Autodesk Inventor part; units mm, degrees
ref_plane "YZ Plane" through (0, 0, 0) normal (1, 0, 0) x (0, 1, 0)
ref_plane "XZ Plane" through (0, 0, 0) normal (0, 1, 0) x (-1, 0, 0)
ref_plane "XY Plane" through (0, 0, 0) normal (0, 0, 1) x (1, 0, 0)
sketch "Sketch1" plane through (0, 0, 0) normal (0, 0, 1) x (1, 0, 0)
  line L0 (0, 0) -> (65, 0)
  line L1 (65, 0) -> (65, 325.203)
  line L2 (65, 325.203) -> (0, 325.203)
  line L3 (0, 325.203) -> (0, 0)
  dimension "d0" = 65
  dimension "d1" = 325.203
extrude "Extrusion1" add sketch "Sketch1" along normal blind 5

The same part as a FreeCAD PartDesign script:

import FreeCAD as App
import Part
import Sketcher
Q = App.Units.Quantity


def add_polygon(sketch, points):
    """Adds a closed chain of lines whose ends are joined by coincident constraints."""
    first, n = sketch.GeometryCount, len(points)
    for a, b in zip(points, points[1:] + points[:1]):
        sketch.addGeometry(Part.LineSegment(App.Vector(*a, 0), App.Vector(*b, 0)), False)
    for i in range(n):
        sketch.addConstraint(Sketcher.Constraint("Coincident", first + i, 2, first + (i + 1) % n, 1))

doc = App.newDocument("Part")
body = doc.addObject("PartDesign::Body", "Body")

# Sketch on XY plane
sketch1 = body.newObject("Sketcher::SketchObject", "Sketch")
sketch1.AttachmentSupport = (doc.getObject("XY_Plane"), [""])
sketch1.MapMode = "FlatFace"
add_polygon(sketch1, [(0, 325), (0, 0), (65, 0), (65, 325)])  # lines 0-3
sketch1.addConstraint(Sketcher.Constraint("Vertical", 0))
sketch1.addConstraint(Sketcher.Constraint("Horizontal", 1))
sketch1.addConstraint(Sketcher.Constraint("Vertical", 2))
sketch1.addConstraint(Sketcher.Constraint("Horizontal", 3))
sketch1.addConstraint(Sketcher.Constraint("Coincident", 0, 2, -1, 1))
sketch1.addConstraint(Sketcher.Constraint("DistanceX", 1, 1, 1, 2, Q("65 mm")))
sketch1.addConstraint(Sketcher.Constraint("DistanceY", 0, 2, 0, 1, Q("325.203 mm")))
pad1 = body.newObject("PartDesign::Pad", "Pad")
pad1.Profile = sketch1
pad1.Length = 5

doc.recompute()
